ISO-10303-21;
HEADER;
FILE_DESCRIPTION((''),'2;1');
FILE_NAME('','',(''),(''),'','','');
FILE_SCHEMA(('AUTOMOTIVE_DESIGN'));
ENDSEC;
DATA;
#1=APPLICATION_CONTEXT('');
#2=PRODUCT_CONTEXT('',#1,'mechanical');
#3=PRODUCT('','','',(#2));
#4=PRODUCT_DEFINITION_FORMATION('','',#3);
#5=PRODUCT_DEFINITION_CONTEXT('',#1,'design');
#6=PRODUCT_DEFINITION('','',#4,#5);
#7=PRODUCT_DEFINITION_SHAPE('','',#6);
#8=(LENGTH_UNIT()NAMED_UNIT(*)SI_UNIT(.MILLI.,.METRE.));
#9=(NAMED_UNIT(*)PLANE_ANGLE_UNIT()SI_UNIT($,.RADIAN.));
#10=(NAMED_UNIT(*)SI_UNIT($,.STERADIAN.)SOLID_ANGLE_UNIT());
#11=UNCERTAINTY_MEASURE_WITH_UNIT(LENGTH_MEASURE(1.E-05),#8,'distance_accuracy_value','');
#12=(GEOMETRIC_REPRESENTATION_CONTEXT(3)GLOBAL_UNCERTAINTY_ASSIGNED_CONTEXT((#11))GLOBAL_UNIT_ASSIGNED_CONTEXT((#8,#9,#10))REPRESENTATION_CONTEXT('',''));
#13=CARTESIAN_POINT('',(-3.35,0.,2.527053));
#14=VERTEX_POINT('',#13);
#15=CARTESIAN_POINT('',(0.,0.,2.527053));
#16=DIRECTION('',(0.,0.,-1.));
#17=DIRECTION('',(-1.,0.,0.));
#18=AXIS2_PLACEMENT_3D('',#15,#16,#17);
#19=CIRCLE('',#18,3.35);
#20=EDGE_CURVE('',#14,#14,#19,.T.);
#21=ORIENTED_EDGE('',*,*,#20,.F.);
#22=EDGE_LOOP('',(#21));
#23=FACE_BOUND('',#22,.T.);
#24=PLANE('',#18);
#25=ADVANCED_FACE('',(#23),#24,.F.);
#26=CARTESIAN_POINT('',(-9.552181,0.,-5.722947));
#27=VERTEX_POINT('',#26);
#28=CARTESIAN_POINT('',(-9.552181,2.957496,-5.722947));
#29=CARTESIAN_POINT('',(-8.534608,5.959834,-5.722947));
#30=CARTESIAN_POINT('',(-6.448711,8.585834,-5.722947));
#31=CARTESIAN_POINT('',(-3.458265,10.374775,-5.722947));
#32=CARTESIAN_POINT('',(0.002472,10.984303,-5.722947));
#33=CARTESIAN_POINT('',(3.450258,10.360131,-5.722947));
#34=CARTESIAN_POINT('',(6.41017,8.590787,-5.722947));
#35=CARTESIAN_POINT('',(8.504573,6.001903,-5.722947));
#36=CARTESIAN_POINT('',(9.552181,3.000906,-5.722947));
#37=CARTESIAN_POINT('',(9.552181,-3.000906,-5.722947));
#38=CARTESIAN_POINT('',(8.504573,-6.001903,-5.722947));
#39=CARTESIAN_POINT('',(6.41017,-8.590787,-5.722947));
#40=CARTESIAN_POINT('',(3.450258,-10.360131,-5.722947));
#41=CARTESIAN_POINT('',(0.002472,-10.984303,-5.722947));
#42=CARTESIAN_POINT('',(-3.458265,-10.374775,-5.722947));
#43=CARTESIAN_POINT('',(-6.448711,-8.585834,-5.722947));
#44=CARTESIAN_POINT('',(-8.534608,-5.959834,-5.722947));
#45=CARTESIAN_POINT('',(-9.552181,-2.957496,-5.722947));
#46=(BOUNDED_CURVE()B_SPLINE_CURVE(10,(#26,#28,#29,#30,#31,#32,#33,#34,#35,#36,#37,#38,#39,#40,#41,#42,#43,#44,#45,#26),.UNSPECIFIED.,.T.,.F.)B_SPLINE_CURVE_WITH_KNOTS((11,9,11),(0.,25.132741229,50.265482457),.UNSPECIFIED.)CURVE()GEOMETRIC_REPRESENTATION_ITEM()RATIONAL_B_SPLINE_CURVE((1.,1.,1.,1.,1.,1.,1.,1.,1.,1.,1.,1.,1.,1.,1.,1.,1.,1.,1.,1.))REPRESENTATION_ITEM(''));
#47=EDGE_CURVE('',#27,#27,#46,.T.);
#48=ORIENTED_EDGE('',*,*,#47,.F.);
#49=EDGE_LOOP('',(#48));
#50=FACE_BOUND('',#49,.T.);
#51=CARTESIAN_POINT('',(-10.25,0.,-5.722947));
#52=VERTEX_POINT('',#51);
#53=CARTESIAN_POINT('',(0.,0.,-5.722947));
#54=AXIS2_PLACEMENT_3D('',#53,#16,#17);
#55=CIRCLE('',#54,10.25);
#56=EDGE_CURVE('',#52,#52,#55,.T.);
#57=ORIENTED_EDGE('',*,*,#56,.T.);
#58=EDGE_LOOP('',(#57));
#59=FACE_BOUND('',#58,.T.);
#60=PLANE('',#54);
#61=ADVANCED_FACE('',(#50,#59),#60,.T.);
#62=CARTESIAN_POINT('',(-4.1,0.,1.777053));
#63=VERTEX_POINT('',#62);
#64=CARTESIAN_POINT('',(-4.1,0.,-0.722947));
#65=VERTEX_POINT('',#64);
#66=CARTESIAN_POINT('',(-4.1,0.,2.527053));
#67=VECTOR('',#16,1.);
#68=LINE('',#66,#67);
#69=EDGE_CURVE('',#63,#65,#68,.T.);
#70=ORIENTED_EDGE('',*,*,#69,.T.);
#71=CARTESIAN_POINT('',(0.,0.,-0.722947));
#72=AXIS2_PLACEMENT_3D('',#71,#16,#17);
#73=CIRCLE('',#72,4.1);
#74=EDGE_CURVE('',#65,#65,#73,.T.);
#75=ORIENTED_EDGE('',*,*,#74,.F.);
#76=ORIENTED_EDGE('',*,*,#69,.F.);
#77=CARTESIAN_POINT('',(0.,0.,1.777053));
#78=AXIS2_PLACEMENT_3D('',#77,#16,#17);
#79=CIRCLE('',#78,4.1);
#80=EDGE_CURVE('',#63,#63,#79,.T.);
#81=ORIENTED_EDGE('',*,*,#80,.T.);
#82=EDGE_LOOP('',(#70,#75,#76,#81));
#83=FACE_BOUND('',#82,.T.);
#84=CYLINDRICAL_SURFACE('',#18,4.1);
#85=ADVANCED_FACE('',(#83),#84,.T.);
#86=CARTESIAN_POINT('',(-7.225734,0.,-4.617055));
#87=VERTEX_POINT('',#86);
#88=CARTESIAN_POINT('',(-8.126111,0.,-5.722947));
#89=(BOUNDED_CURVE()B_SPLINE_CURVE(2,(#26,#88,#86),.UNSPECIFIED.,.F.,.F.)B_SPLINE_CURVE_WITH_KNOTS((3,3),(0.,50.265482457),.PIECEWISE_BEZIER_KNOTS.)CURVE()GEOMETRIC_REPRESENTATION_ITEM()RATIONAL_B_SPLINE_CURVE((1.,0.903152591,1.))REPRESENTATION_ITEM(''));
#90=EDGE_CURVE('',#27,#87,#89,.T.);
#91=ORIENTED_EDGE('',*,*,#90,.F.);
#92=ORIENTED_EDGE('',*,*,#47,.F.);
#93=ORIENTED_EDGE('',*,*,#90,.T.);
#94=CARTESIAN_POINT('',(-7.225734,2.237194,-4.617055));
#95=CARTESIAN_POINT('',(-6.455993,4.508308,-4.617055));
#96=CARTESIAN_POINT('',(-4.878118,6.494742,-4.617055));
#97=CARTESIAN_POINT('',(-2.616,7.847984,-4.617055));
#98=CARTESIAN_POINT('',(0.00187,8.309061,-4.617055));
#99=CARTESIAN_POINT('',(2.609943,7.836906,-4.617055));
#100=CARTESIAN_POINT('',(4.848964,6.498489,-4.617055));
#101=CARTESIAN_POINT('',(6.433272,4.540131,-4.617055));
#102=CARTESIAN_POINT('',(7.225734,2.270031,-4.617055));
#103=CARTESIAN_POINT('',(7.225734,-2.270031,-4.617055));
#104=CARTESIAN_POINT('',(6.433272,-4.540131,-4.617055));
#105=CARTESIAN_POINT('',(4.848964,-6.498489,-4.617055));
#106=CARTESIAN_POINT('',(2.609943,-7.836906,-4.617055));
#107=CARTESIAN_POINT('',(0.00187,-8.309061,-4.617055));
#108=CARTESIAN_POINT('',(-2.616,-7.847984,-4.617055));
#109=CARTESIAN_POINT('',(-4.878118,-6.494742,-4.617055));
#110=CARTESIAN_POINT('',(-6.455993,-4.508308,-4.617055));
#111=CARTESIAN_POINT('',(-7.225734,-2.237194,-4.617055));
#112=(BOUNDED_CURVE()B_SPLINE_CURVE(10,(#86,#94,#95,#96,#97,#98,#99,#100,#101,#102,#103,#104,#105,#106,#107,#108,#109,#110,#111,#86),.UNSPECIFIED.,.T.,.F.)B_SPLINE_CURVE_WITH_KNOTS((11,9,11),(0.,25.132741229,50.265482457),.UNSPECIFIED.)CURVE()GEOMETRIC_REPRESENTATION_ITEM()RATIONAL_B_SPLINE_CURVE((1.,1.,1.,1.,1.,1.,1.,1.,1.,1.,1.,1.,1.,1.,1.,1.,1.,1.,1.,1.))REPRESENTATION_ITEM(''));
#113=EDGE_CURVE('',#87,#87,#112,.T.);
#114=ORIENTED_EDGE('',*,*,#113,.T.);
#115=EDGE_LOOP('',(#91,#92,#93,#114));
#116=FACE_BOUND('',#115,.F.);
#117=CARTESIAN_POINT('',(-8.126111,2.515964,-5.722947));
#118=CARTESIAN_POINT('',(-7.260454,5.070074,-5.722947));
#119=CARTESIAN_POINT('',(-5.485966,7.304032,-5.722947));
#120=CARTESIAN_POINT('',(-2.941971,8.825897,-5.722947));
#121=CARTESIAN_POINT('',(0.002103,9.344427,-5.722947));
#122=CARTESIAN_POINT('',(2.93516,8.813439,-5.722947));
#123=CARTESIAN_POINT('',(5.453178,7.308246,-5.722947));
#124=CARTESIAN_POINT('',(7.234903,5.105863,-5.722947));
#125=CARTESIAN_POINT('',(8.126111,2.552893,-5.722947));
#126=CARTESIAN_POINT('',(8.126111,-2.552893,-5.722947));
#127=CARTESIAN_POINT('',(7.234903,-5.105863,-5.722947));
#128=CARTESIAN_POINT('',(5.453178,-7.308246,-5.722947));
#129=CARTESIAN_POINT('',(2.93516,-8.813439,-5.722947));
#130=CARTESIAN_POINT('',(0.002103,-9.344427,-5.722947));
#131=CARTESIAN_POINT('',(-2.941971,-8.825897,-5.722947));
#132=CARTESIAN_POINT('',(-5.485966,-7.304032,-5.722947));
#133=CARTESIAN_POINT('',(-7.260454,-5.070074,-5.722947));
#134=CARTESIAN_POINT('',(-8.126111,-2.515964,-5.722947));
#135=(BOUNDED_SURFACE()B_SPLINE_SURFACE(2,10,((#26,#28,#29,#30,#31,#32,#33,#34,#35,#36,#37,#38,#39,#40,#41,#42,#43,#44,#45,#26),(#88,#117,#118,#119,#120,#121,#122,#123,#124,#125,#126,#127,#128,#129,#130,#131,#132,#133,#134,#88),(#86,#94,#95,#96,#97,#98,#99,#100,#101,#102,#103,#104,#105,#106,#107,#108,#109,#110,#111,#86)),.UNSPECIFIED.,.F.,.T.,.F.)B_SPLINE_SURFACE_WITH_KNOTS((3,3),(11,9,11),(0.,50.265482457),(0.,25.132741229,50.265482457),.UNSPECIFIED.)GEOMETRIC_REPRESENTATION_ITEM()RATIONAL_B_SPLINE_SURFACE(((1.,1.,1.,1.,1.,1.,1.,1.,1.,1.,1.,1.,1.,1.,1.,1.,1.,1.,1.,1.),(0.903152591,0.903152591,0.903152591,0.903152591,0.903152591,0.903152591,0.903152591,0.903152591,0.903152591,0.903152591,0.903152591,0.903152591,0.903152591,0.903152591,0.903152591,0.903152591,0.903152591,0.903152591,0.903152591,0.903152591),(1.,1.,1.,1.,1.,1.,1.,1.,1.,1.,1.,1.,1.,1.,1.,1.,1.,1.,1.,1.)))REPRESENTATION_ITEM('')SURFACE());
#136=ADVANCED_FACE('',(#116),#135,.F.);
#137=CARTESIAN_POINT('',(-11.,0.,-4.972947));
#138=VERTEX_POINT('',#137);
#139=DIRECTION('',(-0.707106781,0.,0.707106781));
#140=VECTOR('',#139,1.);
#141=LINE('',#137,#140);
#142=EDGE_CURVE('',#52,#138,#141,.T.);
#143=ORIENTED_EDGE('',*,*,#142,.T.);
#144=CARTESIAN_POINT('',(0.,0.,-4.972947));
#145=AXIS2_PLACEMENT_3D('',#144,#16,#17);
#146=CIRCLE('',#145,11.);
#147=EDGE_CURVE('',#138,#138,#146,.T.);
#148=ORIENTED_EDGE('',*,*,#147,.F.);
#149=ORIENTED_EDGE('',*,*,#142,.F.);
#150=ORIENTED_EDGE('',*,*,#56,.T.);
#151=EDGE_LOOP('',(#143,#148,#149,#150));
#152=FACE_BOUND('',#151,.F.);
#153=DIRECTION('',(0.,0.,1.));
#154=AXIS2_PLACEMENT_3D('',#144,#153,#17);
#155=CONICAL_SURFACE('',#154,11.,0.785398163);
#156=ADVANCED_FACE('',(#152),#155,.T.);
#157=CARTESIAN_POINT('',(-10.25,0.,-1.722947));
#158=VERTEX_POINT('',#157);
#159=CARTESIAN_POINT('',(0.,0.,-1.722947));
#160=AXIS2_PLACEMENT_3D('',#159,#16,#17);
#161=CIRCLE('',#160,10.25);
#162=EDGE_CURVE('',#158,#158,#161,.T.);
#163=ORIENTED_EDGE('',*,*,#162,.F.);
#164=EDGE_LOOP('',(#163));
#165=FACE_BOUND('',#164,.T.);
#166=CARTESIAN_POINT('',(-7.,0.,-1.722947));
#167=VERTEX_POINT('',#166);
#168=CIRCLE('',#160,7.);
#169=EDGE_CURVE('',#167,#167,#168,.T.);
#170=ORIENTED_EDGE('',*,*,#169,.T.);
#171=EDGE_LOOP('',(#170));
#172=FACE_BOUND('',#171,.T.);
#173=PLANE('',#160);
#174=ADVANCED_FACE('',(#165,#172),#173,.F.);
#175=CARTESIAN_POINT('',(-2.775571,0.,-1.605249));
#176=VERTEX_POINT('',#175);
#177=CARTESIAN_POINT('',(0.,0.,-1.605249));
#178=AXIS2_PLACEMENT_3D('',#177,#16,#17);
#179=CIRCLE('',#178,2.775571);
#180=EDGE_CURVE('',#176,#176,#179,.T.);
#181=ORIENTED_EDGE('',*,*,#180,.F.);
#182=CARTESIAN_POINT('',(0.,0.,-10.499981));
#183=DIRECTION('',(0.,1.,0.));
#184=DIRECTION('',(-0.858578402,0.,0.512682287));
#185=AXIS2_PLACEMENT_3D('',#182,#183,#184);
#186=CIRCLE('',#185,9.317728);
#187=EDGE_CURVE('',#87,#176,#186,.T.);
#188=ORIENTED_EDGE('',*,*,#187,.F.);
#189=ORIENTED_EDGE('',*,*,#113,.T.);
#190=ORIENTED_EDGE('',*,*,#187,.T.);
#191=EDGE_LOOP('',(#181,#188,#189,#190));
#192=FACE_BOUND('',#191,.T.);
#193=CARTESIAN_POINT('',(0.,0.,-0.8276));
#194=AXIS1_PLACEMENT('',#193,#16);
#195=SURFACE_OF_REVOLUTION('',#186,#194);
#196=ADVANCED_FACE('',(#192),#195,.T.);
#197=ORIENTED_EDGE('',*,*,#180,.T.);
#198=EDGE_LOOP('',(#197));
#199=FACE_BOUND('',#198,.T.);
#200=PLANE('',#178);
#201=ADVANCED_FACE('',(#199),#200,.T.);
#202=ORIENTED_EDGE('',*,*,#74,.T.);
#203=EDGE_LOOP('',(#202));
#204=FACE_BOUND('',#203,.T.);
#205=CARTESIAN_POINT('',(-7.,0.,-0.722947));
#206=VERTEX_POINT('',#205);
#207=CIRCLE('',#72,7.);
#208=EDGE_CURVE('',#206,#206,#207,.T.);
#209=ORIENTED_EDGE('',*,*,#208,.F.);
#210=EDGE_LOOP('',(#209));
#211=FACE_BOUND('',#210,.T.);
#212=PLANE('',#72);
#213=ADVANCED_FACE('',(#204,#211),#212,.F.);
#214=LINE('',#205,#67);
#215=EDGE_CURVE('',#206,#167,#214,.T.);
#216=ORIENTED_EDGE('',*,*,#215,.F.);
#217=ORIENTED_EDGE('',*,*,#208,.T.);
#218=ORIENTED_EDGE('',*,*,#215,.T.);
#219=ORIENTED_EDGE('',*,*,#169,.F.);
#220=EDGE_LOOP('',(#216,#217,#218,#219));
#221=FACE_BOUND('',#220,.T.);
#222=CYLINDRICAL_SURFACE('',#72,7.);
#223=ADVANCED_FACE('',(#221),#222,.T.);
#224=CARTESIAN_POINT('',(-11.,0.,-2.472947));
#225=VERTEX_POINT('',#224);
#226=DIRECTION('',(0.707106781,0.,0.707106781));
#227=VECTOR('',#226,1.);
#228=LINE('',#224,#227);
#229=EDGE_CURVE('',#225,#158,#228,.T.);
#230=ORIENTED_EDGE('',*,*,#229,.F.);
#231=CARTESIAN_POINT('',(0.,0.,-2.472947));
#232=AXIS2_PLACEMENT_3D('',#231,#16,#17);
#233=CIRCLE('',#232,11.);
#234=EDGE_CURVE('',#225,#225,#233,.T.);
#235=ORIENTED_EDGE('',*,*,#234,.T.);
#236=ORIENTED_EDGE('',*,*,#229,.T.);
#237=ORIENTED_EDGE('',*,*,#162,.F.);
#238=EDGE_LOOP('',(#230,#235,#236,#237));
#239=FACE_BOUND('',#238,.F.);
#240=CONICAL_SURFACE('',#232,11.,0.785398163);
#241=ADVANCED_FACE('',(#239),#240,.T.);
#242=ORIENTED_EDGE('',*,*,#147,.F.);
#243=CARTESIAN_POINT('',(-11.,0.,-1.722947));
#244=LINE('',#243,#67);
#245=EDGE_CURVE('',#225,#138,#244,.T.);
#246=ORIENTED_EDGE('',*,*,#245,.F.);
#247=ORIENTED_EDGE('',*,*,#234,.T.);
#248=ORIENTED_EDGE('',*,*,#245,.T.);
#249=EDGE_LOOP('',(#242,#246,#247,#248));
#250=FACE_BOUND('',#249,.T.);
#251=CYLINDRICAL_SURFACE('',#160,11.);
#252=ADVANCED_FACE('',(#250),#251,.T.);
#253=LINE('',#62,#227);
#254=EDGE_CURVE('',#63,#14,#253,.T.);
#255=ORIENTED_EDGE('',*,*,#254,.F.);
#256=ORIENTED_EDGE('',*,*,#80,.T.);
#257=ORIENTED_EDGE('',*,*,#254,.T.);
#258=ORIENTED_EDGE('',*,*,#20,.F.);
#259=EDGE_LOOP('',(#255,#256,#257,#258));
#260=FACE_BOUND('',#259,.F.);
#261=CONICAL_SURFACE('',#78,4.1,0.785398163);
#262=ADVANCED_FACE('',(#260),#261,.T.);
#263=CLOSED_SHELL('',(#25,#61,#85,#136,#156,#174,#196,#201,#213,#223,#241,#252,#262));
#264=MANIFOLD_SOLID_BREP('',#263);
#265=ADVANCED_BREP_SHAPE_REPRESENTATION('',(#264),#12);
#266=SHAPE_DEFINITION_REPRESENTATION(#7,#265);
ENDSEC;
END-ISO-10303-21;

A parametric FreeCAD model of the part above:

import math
import FreeCAD as App
import Part
import Sketcher

V = App.Vector
Q = App.Units.Quantity


def edges_at(feature, points):
    """Names of the edges that pass closest to the given points."""
    edges = feature.Shape.Edges
    near = lambda p: min(range(len(edges)), key=lambda i: edges[i].distToShape(Part.Vertex(*p))[0])
    return sorted({f"Edge{near(p) + 1}" for p in points})

doc = App.newDocument("Part")
body = doc.addObject("PartDesign::Body", "Body")

sketch1 = doc.addObject("Sketcher::SketchObject", "Sketch")
body.addObject(sketch1)
sketch1.AttachmentSupport = (doc.XZ_Plane, [""])
sketch1.MapMode = "FlatFace"
sketch1.addGeometry([
    Part.LineSegment(V(-11, -1.7, 0), V(-11, -5.7, 0)),
    Part.LineSegment(V(-11, -5.7, 0), V(-8, -5.7, 0)),
    Part.ArcOfCircle(Part.Circle(V(0, -10.5, 0), V(0, 0, 1), 9.3), math.radians(107), math.radians(149)),
    Part.LineSegment(V(-2.8, -1.6, 0), V(0, -1.6, 0)),
    Part.LineSegment(V(0, -1.6, 0), V(0, 2.5, 0)),
    Part.LineSegment(V(0, 2.5, 0), V(-4.1, 2.5, 0)),
    Part.LineSegment(V(-4.1, 2.5, 0), V(-4.1, -0.7, 0)),
    Part.LineSegment(V(-4.1, -0.7, 0), V(-7, -0.7, 0)),
    Part.LineSegment(V(-7, -0.7, 0), V(-7, -1.7, 0)),
    Part.LineSegment(V(-7, -1.7, 0), V(-11, -1.7, 0)),
], False)
sketch1.addConstraint([
    Sketcher.Constraint("Coincident", 0, 2, 1, 1),
    Sketcher.Constraint("Coincident", 1, 2, 2, 2),
    Sketcher.Constraint("Coincident", 2, 1, 3, 1),
    Sketcher.Constraint("Coincident", 3, 2, 4, 1),
    Sketcher.Constraint("Coincident", 4, 2, 5, 1),
    Sketcher.Constraint("Coincident", 5, 2, 6, 1),
    Sketcher.Constraint("Coincident", 6, 2, 7, 1),
    Sketcher.Constraint("Coincident", 7, 2, 8, 1),
    Sketcher.Constraint("Coincident", 8, 2, 9, 1),
    Sketcher.Constraint("Coincident", 9, 2, 0, 1),
    Sketcher.Constraint("Vertical", 0),
    Sketcher.Constraint("Horizontal", 1),
    Sketcher.Constraint("Horizontal", 3),
    Sketcher.Constraint("Vertical", 4),
    Sketcher.Constraint("Horizontal", 5),
    Sketcher.Constraint("Vertical", 6),
    Sketcher.Constraint("Horizontal", 7),
    Sketcher.Constraint("Vertical", 8),
    Sketcher.Constraint("Horizontal", 9),
    Sketcher.Constraint("PointOnObject", 2, 3, -2),
    Sketcher.Constraint("PointOnObject", 3, 2, -2),
    Sketcher.Constraint("Equal", 9, 0),
    Sketcher.Constraint("DistanceX", 1, 1, 1, 2, Q("3 mm")),
    Sketcher.Constraint("DistanceX", 9, 2, 9, 1, Q("4 mm")),
    Sketcher.Constraint("DistanceY", 8, 2, 8, 1, Q("1 mm")),
    Sketcher.Constraint("DistanceX", 5, 2, 5, 1, Q("4.1 mm")),
    Sketcher.Constraint("DistanceX", 7, 2, 7, 1, Q("2.9 mm")),
    Sketcher.Constraint("DistanceY", 6, 2, 6, 1, Q("3.25 mm")),
    Sketcher.Constraint("Radius", 2, Q("9.317728 mm")),
    Sketcher.Constraint("DistanceX", 3, 1, 3, 2, Q("2.775571 mm")),
    Sketcher.Constraint("DistanceY", 2, 3, -1, 1, Q("10.499981 mm")),
])
revolution = doc.addObject("PartDesign::Revolution", "Revolution")
body.addObject(revolution)
revolution.Profile = sketch1
revolution.ReferenceAxis = (sketch1, ["V_Axis"])
revolution.Angle = 360
doc.recompute()

fillet = doc.addObject("PartDesign::Fillet", "Fillet")
body.addObject(fillet)
fillet.Base = (revolution, edges_at(revolution, [(8, 0, -5.723)]))
fillet.Radius = 3
doc.recompute()

chamfer = doc.addObject("PartDesign::Chamfer", "Chamfer")
body.addObject(chamfer)
chamfer.Base = (fillet, edges_at(fillet, [(11, 0, -5.723), (11, 0, -1.723)]))
chamfer.Size = 0.75
doc.recompute()

chamfer2 = doc.addObject("PartDesign::Chamfer", "Chamfer001")
body.addObject(chamfer2)
chamfer2.Base = (chamfer, edges_at(chamfer, [(4.1, 0, 2.527)]))
chamfer2.Size = 0.75

doc.recompute()
